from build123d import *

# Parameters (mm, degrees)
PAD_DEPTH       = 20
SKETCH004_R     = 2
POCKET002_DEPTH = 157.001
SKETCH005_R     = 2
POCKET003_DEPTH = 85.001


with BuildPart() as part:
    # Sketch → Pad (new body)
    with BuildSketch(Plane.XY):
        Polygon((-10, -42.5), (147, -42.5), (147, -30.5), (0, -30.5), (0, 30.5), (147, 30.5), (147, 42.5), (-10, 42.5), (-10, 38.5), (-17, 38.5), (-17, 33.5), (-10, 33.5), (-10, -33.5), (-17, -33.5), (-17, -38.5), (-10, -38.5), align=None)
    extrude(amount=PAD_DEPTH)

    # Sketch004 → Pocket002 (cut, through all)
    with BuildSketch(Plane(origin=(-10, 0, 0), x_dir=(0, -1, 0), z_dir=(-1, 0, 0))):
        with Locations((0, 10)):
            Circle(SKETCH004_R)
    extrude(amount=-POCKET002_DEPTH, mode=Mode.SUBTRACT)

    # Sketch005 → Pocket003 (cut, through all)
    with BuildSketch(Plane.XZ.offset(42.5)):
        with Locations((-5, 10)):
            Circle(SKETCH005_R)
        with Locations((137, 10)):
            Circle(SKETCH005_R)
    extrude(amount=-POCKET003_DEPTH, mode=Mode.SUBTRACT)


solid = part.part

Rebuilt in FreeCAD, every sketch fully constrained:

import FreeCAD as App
import Part
import Sketcher
from FreeCAD import Vector

doc = App.newDocument("Part")
body = doc.addObject("PartDesign::Body", "Body")

sketch1 = body.newObject("Sketcher::SketchObject", "Sketch")
sketch1.AttachmentSupport = (doc.getObject("XY_Plane"), [""])
sketch1.MapMode = "FlatFace"
sketch1.addGeometry([
    Part.LineSegment(Vector(-10, -42.5, 0), Vector(147, -42.5, 0)),
    Part.LineSegment(Vector(147, -42.5, 0), Vector(147, -30.5, 0)),
    Part.LineSegment(Vector(147, -30.5, 0), Vector(0, -30.5, 0)),
    Part.LineSegment(Vector(0, -30.5, 0), Vector(0, 30.5, 0)),
    Part.LineSegment(Vector(0, 30.5, 0), Vector(147, 30.5, 0)),
    Part.LineSegment(Vector(147, 30.5, 0), Vector(147, 42.5, 0)),
    Part.LineSegment(Vector(147, 42.5, 0), Vector(-10, 42.5, 0)),
    Part.LineSegment(Vector(-10, 42.5, 0), Vector(-10, 38.5, 0)),
    Part.LineSegment(Vector(-10, 38.5, 0), Vector(-17, 38.5, 0)),
    Part.LineSegment(Vector(-17, 38.5, 0), Vector(-17, 33.5, 0)),
    Part.LineSegment(Vector(-17, 33.5, 0), Vector(-10, 33.5, 0)),
    Part.LineSegment(Vector(-10, 33.5, 0), Vector(-10, -33.5, 0)),
    Part.LineSegment(Vector(-10, -33.5, 0), Vector(-17, -33.5, 0)),
    Part.LineSegment(Vector(-17, -33.5, 0), Vector(-17, -38.5, 0)),
    Part.LineSegment(Vector(-17, -38.5, 0), Vector(-10, -38.5, 0)),
    Part.LineSegment(Vector(-10, -38.5, 0), Vector(-10, -42.5, 0)),
], False)
sketch1.addConstraint([
    Sketcher.Constraint("Coincident", 0, 2, 1, 1),
    Sketcher.Constraint("Coincident", 1, 2, 2, 1),
    Sketcher.Constraint("Coincident", 2, 2, 3, 1),
    Sketcher.Constraint("Coincident", 3, 2, 4, 1),
    Sketcher.Constraint("Coincident", 4, 2, 5, 1),
    Sketcher.Constraint("Coincident", 5, 2, 6, 1),
    Sketcher.Constraint("Coincident", 6, 2, 7, 1),
    Sketcher.Constraint("Coincident", 7, 2, 8, 1),
    Sketcher.Constraint("Coincident", 8, 2, 9, 1),
    Sketcher.Constraint("Coincident", 9, 2, 10, 1),
    Sketcher.Constraint("Coincident", 10, 2, 11, 1),
    Sketcher.Constraint("Coincident", 11, 2, 12, 1),
    Sketcher.Constraint("Coincident", 12, 2, 13, 1),
    Sketcher.Constraint("Coincident", 13, 2, 14, 1),
    Sketcher.Constraint("Coincident", 14, 2, 15, 1),
    Sketcher.Constraint("Coincident", 15, 2, 0, 1),
    Sketcher.Constraint("Horizontal", 0),
    Sketcher.Constraint("Vertical", 1),
    Sketcher.Constraint("Horizontal", 2),
    Sketcher.Constraint("Vertical", 3),
    Sketcher.Constraint("Horizontal", 4),
    Sketcher.Constraint("Vertical", 5),
    Sketcher.Constraint("Horizontal", 6),
    Sketcher.Constraint("Vertical", 7),
    Sketcher.Constraint("Horizontal", 8),
    Sketcher.Constraint("Vertical", 9),
    Sketcher.Constraint("Horizontal", 10),
    Sketcher.Constraint("Vertical", 11),
    Sketcher.Constraint("Horizontal", 12),
    Sketcher.Constraint("Vertical", 13),
    Sketcher.Constraint("Horizontal", 14),
    Sketcher.Constraint("Vertical", 15),
    Sketcher.Constraint("Symmetric", 2, 2, 3, 2, -1, 1),
    Sketcher.Constraint("Symmetric", 0, 2, 5, 2, -1),
    Sketcher.Constraint("Symmetric", 9, 2, 12, 2, -1),
    Sketcher.Constraint("Symmetric", 7, 2, 14, 2, -1),
    Sketcher.Constraint("Vertical", 7, 2, 10, 2),
    Sketcher.Constraint("DistanceX", 0, 1, 0, 2, 157.0),
    Sketcher.Constraint("DistanceX", 2, 2, 2, 1, 147.0),
    Sketcher.Constraint("DistanceX", 8, 2, 8, 1, 7.0),
    Sketcher.Constraint("DistanceY", 1, 1, 1, 2, 12.0),
    Sketcher.Constraint("DistanceY", 3, 1, 3, 2, 61.0),
    Sketcher.Constraint("DistanceY", 7, 2, 7, 1, 4.0),
    Sketcher.Constraint("DistanceY", 9, 2, 9, 1, 5.0),
])
pad1 = body.newObject("PartDesign::Pad", "Pad")
pad1.Profile = sketch1
pad1.Length = 20

sketch2 = body.newObject("Sketcher::SketchObject", "Sketch001")
sketch2.AttachmentSupport = (doc.getObject("YZ_Plane"), [""])
sketch2.MapMode = "FlatFace"
sketch2.AttachmentOffset = App.Placement(Vector(0, 0, -10), App.Rotation())
sketch2.addGeometry(Part.Circle(Vector(0, 10, 0), Vector(0, 0, 1), 2), False)
sketch2.addConstraint([
    Sketcher.Constraint("PointOnObject", 0, 3, -2),
    Sketcher.Constraint("Diameter", 0, 4.0),
    Sketcher.Constraint("DistanceY", -1, 1, 0, 3, 10.0),
])
pocket1 = body.newObject("PartDesign::Pocket", "Pocket")
pocket1.Profile = sketch2
pocket1.Type = "ThroughAll"
pocket1.Reversed = True

sketch3 = body.newObject("Sketcher::SketchObject", "Sketch002")
sketch3.AttachmentSupport = (doc.getObject("XZ_Plane"), [""])
sketch3.MapMode = "FlatFace"
sketch3.AttachmentOffset = App.Placement(Vector(0, 0, 42.5), App.Rotation())
sketch3.addGeometry([
    Part.Circle(Vector(-5, 10, 0), Vector(0, 0, 1), 2),
    Part.Circle(Vector(137, 10, 0), Vector(0, 0, 1), 2),
], False)
sketch3.addConstraint([
    Sketcher.Constraint("Equal", 0, 1),
    Sketcher.Constraint("Horizontal", 0, 3, 1, 3),
    Sketcher.Constraint("Diameter", 0, 4.0),
    Sketcher.Constraint("DistanceX", 0, 3, -1, 1, 5.0),
    Sketcher.Constraint("DistanceY", -1, 1, 0, 3, 10.0),
    Sketcher.Constraint("DistanceX", -1, 1, 1, 3, 137.0),
])
pocket2 = body.newObject("PartDesign::Pocket", "Pocket001")
pocket2.Profile = sketch3
pocket2.Type = "ThroughAll"

doc.recompute()
